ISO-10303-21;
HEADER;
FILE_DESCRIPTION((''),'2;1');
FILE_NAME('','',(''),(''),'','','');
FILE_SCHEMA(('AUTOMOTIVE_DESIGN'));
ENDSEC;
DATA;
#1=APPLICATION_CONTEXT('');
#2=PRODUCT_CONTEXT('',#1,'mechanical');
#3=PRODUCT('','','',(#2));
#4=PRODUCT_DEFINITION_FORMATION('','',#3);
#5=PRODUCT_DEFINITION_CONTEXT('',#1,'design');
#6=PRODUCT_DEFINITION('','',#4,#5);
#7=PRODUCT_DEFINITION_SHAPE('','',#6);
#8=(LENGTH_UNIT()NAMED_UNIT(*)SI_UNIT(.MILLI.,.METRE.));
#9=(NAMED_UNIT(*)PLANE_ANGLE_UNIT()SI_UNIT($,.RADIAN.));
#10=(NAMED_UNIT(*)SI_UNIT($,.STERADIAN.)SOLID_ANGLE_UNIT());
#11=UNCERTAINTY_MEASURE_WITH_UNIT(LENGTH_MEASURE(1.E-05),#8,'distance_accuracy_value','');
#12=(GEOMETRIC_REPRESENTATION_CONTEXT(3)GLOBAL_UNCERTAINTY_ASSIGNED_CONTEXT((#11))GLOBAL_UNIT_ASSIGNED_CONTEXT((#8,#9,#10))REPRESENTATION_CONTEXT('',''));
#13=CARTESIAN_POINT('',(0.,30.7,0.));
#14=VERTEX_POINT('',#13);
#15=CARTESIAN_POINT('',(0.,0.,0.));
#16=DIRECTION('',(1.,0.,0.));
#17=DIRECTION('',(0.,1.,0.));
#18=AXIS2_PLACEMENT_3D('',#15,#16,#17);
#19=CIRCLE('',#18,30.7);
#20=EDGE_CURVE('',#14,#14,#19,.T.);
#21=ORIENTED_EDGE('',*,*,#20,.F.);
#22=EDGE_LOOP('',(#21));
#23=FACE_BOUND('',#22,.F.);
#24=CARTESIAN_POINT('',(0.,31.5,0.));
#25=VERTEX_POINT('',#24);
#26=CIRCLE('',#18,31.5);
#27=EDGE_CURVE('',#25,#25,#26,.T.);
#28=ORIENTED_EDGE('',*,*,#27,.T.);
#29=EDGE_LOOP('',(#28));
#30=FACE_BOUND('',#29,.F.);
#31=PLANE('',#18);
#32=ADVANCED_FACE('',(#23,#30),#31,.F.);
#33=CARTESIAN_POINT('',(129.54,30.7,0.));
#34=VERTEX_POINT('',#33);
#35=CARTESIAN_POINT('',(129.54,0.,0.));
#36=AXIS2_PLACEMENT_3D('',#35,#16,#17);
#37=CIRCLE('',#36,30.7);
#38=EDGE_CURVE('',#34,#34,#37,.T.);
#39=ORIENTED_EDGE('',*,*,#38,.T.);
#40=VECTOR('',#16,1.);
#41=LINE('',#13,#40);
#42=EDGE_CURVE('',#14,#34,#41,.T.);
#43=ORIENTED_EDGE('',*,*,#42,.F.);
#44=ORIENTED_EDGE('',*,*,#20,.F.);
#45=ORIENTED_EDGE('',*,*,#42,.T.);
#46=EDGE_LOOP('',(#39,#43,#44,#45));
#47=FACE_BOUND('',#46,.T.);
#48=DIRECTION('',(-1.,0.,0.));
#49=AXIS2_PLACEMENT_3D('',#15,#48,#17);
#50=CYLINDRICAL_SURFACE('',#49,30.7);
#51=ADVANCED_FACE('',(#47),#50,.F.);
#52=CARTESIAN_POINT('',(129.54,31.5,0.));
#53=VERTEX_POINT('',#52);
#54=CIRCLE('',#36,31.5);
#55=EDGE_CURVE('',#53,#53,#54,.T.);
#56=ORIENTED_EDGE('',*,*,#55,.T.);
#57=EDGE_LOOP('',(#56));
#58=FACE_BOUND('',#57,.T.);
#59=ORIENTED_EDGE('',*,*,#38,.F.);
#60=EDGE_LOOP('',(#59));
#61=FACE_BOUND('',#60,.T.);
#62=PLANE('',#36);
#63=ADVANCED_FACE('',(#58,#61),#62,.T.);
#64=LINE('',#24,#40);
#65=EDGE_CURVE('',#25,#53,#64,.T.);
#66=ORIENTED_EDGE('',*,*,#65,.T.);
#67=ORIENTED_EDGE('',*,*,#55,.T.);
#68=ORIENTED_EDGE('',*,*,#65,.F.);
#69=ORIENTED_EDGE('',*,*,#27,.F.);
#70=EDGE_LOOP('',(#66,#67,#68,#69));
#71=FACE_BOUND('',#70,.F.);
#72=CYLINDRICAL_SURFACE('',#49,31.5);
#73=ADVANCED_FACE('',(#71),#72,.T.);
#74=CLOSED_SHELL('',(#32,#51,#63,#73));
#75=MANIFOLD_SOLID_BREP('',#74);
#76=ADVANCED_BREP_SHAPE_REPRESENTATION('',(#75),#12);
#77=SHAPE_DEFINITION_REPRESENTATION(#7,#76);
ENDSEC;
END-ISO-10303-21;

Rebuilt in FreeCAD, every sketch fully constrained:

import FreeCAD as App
import Part
import Sketcher
from FreeCAD import Vector
Q = App.Units.Quantity

doc = App.newDocument("Part")
body = doc.addObject("PartDesign::Body", "Body")

# Sketch on YZ plane
sketch1 = body.newObject("Sketcher::SketchObject", "Sketch")
sketch1.AttachmentSupport = (doc.getObject("YZ_Plane"), [""])
sketch1.MapMode = "FlatFace"
sketch1.addGeometry(Part.Circle(Vector(0, 0, 0), Vector(0, 0, 1), 32), False)
sketch1.addGeometry(Part.Circle(Vector(0, 0, 0), Vector(0, 0, 1), 31), False)
sketch1.addConstraint(Sketcher.Constraint("Coincident", 0, 3, -1, 1))
sketch1.addConstraint(Sketcher.Constraint("Coincident", 1, 3, -1, 1))
sketch1.addConstraint(Sketcher.Constraint("Diameter", 0, Q("63 mm")))
sketch1.addConstraint(Sketcher.Constraint("Diameter", 1, Q("61.4 mm")))
pad1 = body.newObject("PartDesign::Pad", "Pad")
pad1.Profile = sketch1
pad1.Length = 129.54

doc.recompute()
